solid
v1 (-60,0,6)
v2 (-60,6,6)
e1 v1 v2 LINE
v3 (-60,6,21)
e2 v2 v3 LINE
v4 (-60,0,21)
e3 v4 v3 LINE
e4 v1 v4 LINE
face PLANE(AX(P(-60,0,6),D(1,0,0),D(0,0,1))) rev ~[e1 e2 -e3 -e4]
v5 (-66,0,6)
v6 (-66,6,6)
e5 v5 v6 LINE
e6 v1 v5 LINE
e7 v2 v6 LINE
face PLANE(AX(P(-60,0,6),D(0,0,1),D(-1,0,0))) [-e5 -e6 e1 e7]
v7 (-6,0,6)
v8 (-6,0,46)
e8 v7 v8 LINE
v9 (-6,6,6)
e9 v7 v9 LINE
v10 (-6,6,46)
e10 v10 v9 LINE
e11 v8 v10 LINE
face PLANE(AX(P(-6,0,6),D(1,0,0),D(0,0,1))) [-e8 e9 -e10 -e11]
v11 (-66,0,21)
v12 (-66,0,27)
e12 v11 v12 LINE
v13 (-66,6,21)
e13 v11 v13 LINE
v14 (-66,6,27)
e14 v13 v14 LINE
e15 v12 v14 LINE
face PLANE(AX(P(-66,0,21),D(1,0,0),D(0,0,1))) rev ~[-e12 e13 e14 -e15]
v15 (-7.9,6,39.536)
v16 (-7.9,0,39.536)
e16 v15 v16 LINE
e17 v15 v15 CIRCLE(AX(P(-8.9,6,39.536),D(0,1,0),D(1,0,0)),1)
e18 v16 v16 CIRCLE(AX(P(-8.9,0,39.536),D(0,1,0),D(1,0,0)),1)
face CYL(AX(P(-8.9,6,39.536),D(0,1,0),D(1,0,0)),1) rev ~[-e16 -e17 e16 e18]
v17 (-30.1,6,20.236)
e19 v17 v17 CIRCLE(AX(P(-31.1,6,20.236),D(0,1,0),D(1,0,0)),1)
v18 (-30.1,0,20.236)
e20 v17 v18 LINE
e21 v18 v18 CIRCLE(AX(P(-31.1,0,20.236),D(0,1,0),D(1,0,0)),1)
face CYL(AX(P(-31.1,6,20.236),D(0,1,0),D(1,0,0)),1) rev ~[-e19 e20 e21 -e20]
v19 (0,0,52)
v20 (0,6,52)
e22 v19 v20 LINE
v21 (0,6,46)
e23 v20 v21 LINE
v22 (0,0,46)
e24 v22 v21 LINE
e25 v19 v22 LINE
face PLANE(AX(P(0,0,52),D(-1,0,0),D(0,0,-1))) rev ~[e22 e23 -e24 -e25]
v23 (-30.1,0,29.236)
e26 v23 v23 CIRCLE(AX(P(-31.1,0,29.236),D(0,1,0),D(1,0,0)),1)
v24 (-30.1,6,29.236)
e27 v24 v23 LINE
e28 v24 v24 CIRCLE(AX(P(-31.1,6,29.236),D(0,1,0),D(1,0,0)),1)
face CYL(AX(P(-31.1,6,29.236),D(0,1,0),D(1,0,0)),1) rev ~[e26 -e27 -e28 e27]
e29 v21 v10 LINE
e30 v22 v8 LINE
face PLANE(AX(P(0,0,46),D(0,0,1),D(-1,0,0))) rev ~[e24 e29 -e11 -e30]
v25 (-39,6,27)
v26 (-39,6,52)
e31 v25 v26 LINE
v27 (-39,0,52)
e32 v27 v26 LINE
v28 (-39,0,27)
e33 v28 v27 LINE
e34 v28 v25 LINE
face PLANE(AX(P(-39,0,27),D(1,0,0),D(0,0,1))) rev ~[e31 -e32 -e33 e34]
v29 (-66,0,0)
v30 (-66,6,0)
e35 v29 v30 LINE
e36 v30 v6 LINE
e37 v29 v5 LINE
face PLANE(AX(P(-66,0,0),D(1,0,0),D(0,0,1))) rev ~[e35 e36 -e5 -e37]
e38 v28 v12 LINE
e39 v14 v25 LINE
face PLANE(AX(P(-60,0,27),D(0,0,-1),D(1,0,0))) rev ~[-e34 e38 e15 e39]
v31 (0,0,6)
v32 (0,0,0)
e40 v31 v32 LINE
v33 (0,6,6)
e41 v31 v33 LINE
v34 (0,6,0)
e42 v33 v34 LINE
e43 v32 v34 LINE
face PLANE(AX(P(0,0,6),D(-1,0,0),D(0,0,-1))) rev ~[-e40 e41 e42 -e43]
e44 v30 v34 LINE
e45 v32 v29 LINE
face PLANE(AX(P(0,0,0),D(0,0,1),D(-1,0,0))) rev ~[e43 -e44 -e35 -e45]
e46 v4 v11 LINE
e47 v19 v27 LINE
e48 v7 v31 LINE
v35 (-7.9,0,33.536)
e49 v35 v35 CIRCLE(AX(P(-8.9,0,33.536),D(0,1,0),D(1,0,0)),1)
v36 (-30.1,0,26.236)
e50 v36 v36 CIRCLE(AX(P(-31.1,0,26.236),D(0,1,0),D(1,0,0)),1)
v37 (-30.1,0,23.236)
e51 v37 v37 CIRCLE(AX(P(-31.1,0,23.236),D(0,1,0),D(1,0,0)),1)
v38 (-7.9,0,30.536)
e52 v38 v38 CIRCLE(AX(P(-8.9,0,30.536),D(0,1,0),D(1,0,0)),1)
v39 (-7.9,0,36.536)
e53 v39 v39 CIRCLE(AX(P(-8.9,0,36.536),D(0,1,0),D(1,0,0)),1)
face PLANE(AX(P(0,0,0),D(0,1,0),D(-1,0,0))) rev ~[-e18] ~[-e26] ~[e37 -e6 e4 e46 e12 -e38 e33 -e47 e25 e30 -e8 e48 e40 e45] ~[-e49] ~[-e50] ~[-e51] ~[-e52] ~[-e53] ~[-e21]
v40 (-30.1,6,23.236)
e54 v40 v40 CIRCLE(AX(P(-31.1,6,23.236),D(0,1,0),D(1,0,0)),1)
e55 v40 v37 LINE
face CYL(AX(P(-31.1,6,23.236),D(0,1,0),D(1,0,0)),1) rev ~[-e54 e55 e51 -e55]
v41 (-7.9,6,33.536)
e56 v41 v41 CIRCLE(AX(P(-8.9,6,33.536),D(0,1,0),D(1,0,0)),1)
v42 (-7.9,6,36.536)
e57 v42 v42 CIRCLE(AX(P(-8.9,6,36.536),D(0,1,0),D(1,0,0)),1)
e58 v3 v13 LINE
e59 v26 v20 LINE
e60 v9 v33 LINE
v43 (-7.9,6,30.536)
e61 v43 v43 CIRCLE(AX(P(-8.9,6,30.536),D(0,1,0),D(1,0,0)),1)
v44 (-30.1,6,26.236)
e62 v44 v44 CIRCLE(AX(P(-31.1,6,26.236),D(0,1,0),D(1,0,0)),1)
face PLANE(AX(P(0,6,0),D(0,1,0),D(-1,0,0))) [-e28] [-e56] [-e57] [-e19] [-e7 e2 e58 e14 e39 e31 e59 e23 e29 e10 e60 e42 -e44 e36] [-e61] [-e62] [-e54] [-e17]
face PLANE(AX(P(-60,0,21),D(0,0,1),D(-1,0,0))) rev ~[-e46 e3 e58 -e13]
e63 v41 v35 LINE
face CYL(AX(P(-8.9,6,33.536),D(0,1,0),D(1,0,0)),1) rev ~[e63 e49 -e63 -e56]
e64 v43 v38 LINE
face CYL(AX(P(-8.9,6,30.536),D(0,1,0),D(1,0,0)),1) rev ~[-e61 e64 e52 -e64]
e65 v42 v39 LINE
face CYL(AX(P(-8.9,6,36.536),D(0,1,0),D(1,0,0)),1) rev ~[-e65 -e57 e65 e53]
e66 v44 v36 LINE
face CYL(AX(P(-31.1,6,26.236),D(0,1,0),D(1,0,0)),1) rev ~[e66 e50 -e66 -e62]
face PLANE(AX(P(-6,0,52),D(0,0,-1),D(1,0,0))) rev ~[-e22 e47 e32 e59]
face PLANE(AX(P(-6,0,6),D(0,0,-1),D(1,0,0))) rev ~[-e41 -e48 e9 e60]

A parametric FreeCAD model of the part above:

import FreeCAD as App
import Part
import Sketcher

V = App.Vector
Q = App.Units.Quantity

doc = App.newDocument("Part")
body = doc.addObject("PartDesign::Body", "Body")

sketch1 = body.newObject("Sketcher::SketchObject", "Sketch")
sketch1.AttachmentSupport = (doc.getObject("XZ_Plane"), [""])
sketch1.MapMode = "FlatFace"
sketch1.addGeometry([
    Part.LineSegment(V(0, 6, 0), V(0, 0, 0)),
    Part.LineSegment(V(0, 0, 0), V(-66, 0, 0)),
    Part.LineSegment(V(-66, 0, 0), V(-66, 6, 0)),
    Part.LineSegment(V(-66, 6, 0), V(-60, 6, 0)),
    Part.LineSegment(V(-60, 6, 0), V(-60, 21, 0)),
    Part.LineSegment(V(-60, 21, 0), V(-66, 21, 0)),
    Part.LineSegment(V(-66, 21, 0), V(-66, 27, 0)),
    Part.LineSegment(V(-66, 27, 0), V(-39, 27, 0)),
    Part.LineSegment(V(-39, 27, 0), V(-39, 52, 0)),
    Part.LineSegment(V(-39, 52, 0), V(0, 52, 0)),
    Part.LineSegment(V(0, 52, 0), V(0, 46, 0)),
    Part.LineSegment(V(0, 46, 0), V(-6, 46, 0)),
    Part.LineSegment(V(-6, 46, 0), V(-6, 6, 0)),
    Part.LineSegment(V(-6, 6, 0), V(0, 6, 0)),
], False)
sketch1.addConstraint([
    Sketcher.Constraint("Coincident", 0, 2, 1, 1),
    Sketcher.Constraint("Coincident", 1, 2, 2, 1),
    Sketcher.Constraint("Coincident", 2, 2, 3, 1),
    Sketcher.Constraint("Coincident", 3, 2, 4, 1),
    Sketcher.Constraint("Coincident", 4, 2, 5, 1),
    Sketcher.Constraint("Coincident", 5, 2, 6, 1),
    Sketcher.Constraint("Coincident", 6, 2, 7, 1),
    Sketcher.Constraint("Coincident", 7, 2, 8, 1),
    Sketcher.Constraint("Coincident", 8, 2, 9, 1),
    Sketcher.Constraint("Coincident", 9, 2, 10, 1),
    Sketcher.Constraint("Coincident", 10, 2, 11, 1),
    Sketcher.Constraint("Coincident", 11, 2, 12, 1),
    Sketcher.Constraint("Coincident", 12, 2, 13, 1),
    Sketcher.Constraint("Coincident", 13, 2, 0, 1),
    Sketcher.Constraint("Vertical", 0),
    Sketcher.Constraint("Horizontal", 1),
    Sketcher.Constraint("Vertical", 2),
    Sketcher.Constraint("Horizontal", 3),
    Sketcher.Constraint("Vertical", 4),
    Sketcher.Constraint("Horizontal", 5),
    Sketcher.Constraint("Vertical", 6),
    Sketcher.Constraint("Horizontal", 7),
    Sketcher.Constraint("Vertical", 8),
    Sketcher.Constraint("Horizontal", 9),
    Sketcher.Constraint("Vertical", 10),
    Sketcher.Constraint("Horizontal", 11),
    Sketcher.Constraint("Vertical", 12),
    Sketcher.Constraint("Horizontal", 13),
    Sketcher.Constraint("Coincident", 0, 2, -1, 1),
    Sketcher.Constraint("PointOnObject", 9, 2, -2),
    Sketcher.Constraint("Horizontal", 3, 2, 12, 2),
    Sketcher.Constraint("Vertical", 2, 2, 5, 2),
    Sketcher.Constraint("Equal", 5, 11),
    Sketcher.Constraint("Equal", 13, 0),
    Sketcher.Constraint("Equal", 2, 6),
    Sketcher.Constraint("Equal", 6, 10),
    Sketcher.Constraint("DistanceX", 1, 2, 1, 1, Q("66 mm")),
    Sketcher.Constraint("DistanceX", 3, 1, 3, 2, Q("6 mm")),
    Sketcher.Constraint("DistanceX", 7, 1, 7, 2, Q("27 mm")),
    Sketcher.Constraint("DistanceY", 8, 1, 8, 2, Q("25 mm")),
    Sketcher.Constraint("DistanceY", -1, 1, 6, 2, Q("27 mm")),
])
pad1 = body.newObject("PartDesign::Pad", "Pad")
pad1.Profile = sketch1
pad1.Length = 6
pad1.Reversed = True

sketch2 = body.newObject("Sketcher::SketchObject", "Sketch001")
sketch2.AttachmentSupport = (doc.getObject("XZ_Plane"), [""])
sketch2.MapMode = "FlatFace"
sketch2.AttachmentOffset = App.Placement(V(0, 0, -6), App.Rotation())
sketch2.addGeometry([
    Part.Circle(V(-8.9, 39.5, 0), V(0, 0, 1), 1),
    Part.Circle(V(-31.1, 29.2, 0), V(0, 0, 1), 1),
    Part.Circle(V(-8.9, 36.5, 0), V(0, 0, 1), 1),
    Part.Circle(V(-8.9, 33.5, 0), V(0, 0, 1), 1),
    Part.Circle(V(-8.9, 30.5, 0), V(0, 0, 1), 1),
    Part.Circle(V(-31.1, 26.2, 0), V(0, 0, 1), 1),
    Part.Circle(V(-31.1, 23.2, 0), V(0, 0, 1), 1),
    Part.Circle(V(-31.1, 20.2, 0), V(0, 0, 1), 1),
], False)
sketch2.addConstraint([
    Sketcher.Constraint("Equal", 0, 1),
    Sketcher.Constraint("Equal", 1, 2),
    Sketcher.Constraint("Equal", 2, 3),
    Sketcher.Constraint("Equal", 3, 4),
    Sketcher.Constraint("Equal", 4, 5),
    Sketcher.Constraint("Equal", 5, 6),
    Sketcher.Constraint("Equal", 6, 7),
    Sketcher.Constraint("Vertical", 0, 3, 2, 3),
    Sketcher.Constraint("Vertical", 2, 3, 3, 3),
    Sketcher.Constraint("Vertical", 3, 3, 4, 3),
    Sketcher.Constraint("Vertical", 1, 3, 5, 3),
    Sketcher.Constraint("Vertical", 5, 3, 6, 3),
    Sketcher.Constraint("Vertical", 6, 3, 7, 3),
    Sketcher.Constraint("Diameter", 0, Q("2 mm")),
    Sketcher.Constraint("DistanceY", 2, 3, 0, 3, Q("3 mm")),
    Sketcher.Constraint("DistanceY", 3, 3, 2, 3, Q("3 mm")),
    Sketcher.Constraint("DistanceY", 4, 3, 3, 3, Q("3 mm")),
    Sketcher.Constraint("DistanceY", 5, 3, 1, 3, Q("3 mm")),
    Sketcher.Constraint("DistanceY", 6, 3, 5, 3, Q("3 mm")),
    Sketcher.Constraint("DistanceY", 7, 3, 6, 3, Q("3 mm")),
    Sketcher.Constraint("DistanceX", 1, 3, 0, 3, Q("22.2 mm")),
    Sketcher.Constraint("DistanceY", 1, 3, 0, 3, Q("10.3 mm")),
    Sketcher.Constraint("DistanceX", 0, 3, -1, 1, Q("8.9 mm")),
    Sketcher.Constraint("DistanceY", -1, 1, 0, 3, Q("39.536 mm")),
])
pocket1 = body.newObject("PartDesign::Pocket", "Pocket")
pocket1.Profile = sketch2
pocket1.Type = "ThroughAll"
pocket1.Reversed = True

doc.recompute()
